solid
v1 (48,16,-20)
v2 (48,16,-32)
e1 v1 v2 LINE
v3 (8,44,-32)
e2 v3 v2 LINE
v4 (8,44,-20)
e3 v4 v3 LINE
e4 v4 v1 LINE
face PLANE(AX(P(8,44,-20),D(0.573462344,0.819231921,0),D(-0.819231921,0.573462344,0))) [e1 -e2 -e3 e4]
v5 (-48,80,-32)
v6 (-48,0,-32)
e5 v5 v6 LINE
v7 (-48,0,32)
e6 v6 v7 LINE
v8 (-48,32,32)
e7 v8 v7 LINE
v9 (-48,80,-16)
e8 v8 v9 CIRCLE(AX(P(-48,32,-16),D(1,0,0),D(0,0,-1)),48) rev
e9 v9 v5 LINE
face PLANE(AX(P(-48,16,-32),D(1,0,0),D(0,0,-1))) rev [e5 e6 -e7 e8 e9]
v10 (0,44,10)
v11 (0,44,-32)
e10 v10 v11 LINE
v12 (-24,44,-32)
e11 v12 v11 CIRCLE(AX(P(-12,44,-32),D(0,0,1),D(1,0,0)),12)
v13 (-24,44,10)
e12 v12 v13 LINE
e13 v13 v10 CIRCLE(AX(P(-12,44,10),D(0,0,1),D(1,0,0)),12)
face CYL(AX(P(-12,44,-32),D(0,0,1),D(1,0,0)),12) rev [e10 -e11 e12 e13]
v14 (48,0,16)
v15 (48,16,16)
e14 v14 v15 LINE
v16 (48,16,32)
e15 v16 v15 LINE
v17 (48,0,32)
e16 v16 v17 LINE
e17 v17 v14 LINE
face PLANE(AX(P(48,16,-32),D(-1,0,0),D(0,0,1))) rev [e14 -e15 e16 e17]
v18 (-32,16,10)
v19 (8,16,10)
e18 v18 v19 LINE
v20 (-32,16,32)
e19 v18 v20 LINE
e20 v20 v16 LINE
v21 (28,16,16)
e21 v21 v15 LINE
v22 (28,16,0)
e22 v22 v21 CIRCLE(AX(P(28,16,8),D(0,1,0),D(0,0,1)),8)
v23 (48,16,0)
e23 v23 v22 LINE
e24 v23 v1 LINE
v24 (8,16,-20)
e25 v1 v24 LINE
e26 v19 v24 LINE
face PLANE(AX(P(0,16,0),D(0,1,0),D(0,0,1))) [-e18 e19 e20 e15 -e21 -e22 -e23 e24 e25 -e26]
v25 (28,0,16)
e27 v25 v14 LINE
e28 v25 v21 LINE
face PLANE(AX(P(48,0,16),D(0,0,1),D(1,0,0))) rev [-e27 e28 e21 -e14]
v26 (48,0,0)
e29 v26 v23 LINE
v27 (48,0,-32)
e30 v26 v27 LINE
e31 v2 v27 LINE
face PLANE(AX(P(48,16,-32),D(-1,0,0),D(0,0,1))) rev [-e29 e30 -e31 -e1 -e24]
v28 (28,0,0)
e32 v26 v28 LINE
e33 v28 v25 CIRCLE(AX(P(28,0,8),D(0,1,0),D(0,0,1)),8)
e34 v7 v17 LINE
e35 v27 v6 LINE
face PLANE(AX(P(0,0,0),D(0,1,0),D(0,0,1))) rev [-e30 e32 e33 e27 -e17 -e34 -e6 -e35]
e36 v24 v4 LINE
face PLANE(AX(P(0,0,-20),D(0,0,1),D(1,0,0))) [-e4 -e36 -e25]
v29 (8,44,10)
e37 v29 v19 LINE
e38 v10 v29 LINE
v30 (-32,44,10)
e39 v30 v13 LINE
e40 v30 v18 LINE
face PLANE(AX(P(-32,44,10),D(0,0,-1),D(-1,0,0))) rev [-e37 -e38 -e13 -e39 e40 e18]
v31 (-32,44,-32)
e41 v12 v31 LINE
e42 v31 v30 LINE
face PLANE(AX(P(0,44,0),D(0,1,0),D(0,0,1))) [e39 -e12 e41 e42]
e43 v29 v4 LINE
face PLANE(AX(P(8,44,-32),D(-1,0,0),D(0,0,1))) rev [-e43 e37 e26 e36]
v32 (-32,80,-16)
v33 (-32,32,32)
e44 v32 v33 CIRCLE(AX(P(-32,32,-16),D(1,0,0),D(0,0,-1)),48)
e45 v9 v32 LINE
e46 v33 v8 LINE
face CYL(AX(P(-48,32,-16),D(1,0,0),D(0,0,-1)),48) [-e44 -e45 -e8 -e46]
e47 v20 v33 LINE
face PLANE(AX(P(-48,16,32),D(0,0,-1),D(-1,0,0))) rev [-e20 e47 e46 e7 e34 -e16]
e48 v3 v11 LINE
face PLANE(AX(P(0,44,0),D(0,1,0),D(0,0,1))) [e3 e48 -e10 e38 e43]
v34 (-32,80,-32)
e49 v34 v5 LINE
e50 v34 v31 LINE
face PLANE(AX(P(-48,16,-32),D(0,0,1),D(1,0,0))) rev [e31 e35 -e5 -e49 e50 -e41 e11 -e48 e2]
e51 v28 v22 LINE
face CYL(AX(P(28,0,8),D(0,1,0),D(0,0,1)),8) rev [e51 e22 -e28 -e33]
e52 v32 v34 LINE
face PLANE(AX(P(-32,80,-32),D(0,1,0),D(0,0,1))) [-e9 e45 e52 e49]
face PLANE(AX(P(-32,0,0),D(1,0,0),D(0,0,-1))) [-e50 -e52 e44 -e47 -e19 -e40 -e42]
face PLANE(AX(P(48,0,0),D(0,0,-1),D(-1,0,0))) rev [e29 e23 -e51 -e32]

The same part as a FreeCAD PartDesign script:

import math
import FreeCAD as App
import Part
import Sketcher


def edges_at(feature, points):
    """Names of the edges that pass closest to the given points."""
    edges = feature.Shape.Edges
    near = lambda p: min(range(len(edges)), key=lambda i: edges[i].distToShape(Part.Vertex(*p))[0])
    return sorted({f"Edge{near(p) + 1}" for p in points})


def add_polygon(sketch, points):
    """Adds a closed chain of lines whose ends are joined by coincident constraints."""
    first, n = sketch.GeometryCount, len(points)
    for a, b in zip(points, points[1:] + points[:1]):
        sketch.addGeometry(Part.LineSegment(App.Vector(*a, 0), App.Vector(*b, 0)), False)
    for i in range(n):
        sketch.addConstraint(Sketcher.Constraint("Coincident", first + i, 2, first + (i + 1) % n, 1))

doc = App.newDocument("Part")
body = doc.addObject("PartDesign::Body", "Body")

# Sketch on XZ plane
sketch1 = doc.addObject("Sketcher::SketchObject", "Sketch")
body.addObject(sketch1)
sketch1.AttachmentSupport = (doc.XZ_Plane, [""])
sketch1.MapMode = "FlatFace"
add_polygon(sketch1, [(-48, -32), (-48, 32), (48, 32), (48, -32)])  # lines 0-3
sketch1.addConstraint(Sketcher.Constraint("Vertical", 0))
sketch1.addConstraint(Sketcher.Constraint("Horizontal", 1))
sketch1.addConstraint(Sketcher.Constraint("Vertical", 2))
sketch1.addConstraint(Sketcher.Constraint("Horizontal", 3))
sketch1.addConstraint(Sketcher.Constraint("Symmetric", 0, 2, 2, 2, -1, 1))
sketch1.addConstraint(Sketcher.Constraint("DistanceX", 1, 1, 1, 2, 96.0))
sketch1.addConstraint(Sketcher.Constraint("DistanceY", 0, 1, 0, 2, 64.0))
pad1 = doc.addObject("PartDesign::Pad", "Pad")
body.addObject(pad1)
pad1.Profile = sketch1
pad1.Length = 16
pad1.Reversed = True

# Sketch on YZ plane
sketch2 = doc.addObject("Sketcher::SketchObject", "Sketch001")
body.addObject(sketch2)
sketch2.AttachmentSupport = (doc.YZ_Plane, [""])
sketch2.MapMode = "FlatFace"
sketch2.AttachmentOffset = App.Placement(App.Vector(0, 0, -48), App.Rotation())
add_polygon(sketch2, [(80, -32), (16, -32), (16, 32), (80, 32)])  # lines 0-3
sketch2.addConstraint(Sketcher.Constraint("Horizontal", 0))
sketch2.addConstraint(Sketcher.Constraint("Vertical", 1))
sketch2.addConstraint(Sketcher.Constraint("Horizontal", 2))
sketch2.addConstraint(Sketcher.Constraint("Vertical", 3))
sketch2.addConstraint(Sketcher.Constraint("Equal", 2, 1))
sketch2.addConstraint(Sketcher.Constraint("DistanceX", 0, 2, 0, 1, 64.0))
sketch2.addConstraint(Sketcher.Constraint("DistanceX", -1, 1, 0, 2, 16.0))
sketch2.addConstraint(Sketcher.Constraint("DistanceY", 0, 2, -1, 1, 32.0))
pad2 = doc.addObject("PartDesign::Pad", "Pad001")
body.addObject(pad2)
pad2.Profile = sketch2
pad2.Length = 16
doc.recompute()

fillet = doc.addObject("PartDesign::Fillet", "Fillet")
body.addObject(fillet)
fillet.Base = (pad2, edges_at(pad2, [(-40, 80, 32)]))
fillet.Radius = 48

# Sketch on XZ plane
sketch3 = doc.addObject("Sketcher::SketchObject", "Sketch002")
body.addObject(sketch3)
sketch3.AttachmentSupport = (doc.XZ_Plane, [""])
sketch3.MapMode = "FlatFace"
sketch3.AttachmentOffset = App.Placement(App.Vector(0, 0, -16), App.Rotation())
add_polygon(sketch3, [(-32, -32), (-32, 10), (8, 10), (8, -32)])  # lines 0-3
sketch3.addConstraint(Sketcher.Constraint("Vertical", 0))
sketch3.addConstraint(Sketcher.Constraint("Horizontal", 1))
sketch3.addConstraint(Sketcher.Constraint("Vertical", 2))
sketch3.addConstraint(Sketcher.Constraint("Horizontal", 3))
sketch3.addConstraint(Sketcher.Constraint("DistanceX", 1, 1, 1, 2, 40.0))
sketch3.addConstraint(Sketcher.Constraint("DistanceY", 0, 1, 0, 2, 42.0))
sketch3.addConstraint(Sketcher.Constraint("DistanceX", 0, 2, -1, 1, 32.0))
sketch3.addConstraint(Sketcher.Constraint("DistanceY", -1, 1, 0, 2, 10.0))
pad3 = doc.addObject("PartDesign::Pad", "Pad002")
body.addObject(pad3)
pad3.Profile = sketch3
pad3.Length = 28
pad3.Reversed = True

# Sketch on XY plane
sketch4 = doc.addObject("Sketcher::SketchObject", "Sketch003")
body.addObject(sketch4)
sketch4.AttachmentSupport = (doc.XY_Plane, [""])
sketch4.MapMode = "FlatFace"
sketch4.AttachmentOffset = App.Placement(App.Vector(0, 0, 10), App.Rotation())
sketch4.addGeometry(Part.Circle(App.Vector(-12, 44, 0), App.Vector(0, 0, 1), 12), False)
sketch4.addConstraint(Sketcher.Constraint("Diameter", 0, 24.0))
sketch4.addConstraint(Sketcher.Constraint("DistanceX", 0, 3, -1, 1, 12.0))
sketch4.addConstraint(Sketcher.Constraint("DistanceY", -1, 1, 0, 3, 44.0))
pocket1 = doc.addObject("PartDesign::Pocket", "Pocket")
body.addObject(pocket1)
pocket1.Profile = sketch4
pocket1.Type = "ThroughAll"

# Sketch on XZ plane
sketch5 = doc.addObject("Sketcher::SketchObject", "Sketch004")
body.addObject(sketch5)
sketch5.AttachmentSupport = (doc.XZ_Plane, [""])
sketch5.MapMode = "FlatFace"
sketch5.AttachmentOffset = App.Placement(App.Vector(0, 0, -16), App.Rotation())
sketch5.addGeometry(Part.LineSegment(App.Vector(28, 16, 0), App.Vector(48, 16, 0)), False)
sketch5.addGeometry(Part.ArcOfCircle(Part.Circle(App.Vector(48, 8, 0), App.Vector(0, 0, 1), 8), math.radians(-90), math.radians(90)), False)
sketch5.addGeometry(Part.LineSegment(App.Vector(48, 0, 0), App.Vector(28, 0, 0)), False)
sketch5.addGeometry(Part.ArcOfCircle(Part.Circle(App.Vector(28, 8, 0), App.Vector(0, 0, 1), 8), math.radians(90), math.radians(270)), False)
sketch5.addConstraint(Sketcher.Constraint("Tangent", 0, 2, 1, 2))
sketch5.addConstraint(Sketcher.Constraint("Tangent", 1, 1, 2, 1))
sketch5.addConstraint(Sketcher.Constraint("Tangent", 2, 2, 3, 2))
sketch5.addConstraint(Sketcher.Constraint("Tangent", 3, 1, 0, 1))
sketch5.addConstraint(Sketcher.Constraint("Horizontal", 0))
sketch5.addConstraint(Sketcher.Constraint("Horizontal", 2))
sketch5.addConstraint(Sketcher.Constraint("PointOnObject", 1, 1, -1))
sketch5.addConstraint(Sketcher.Constraint("Radius", 1, 8.0))
sketch5.addConstraint(Sketcher.Constraint("DistanceX", 0, 1, 0, 2, 20.0))
sketch5.addConstraint(Sketcher.Constraint("DistanceX", -1, 1, 1, 3, 48.0))
pocket2 = doc.addObject("PartDesign::Pocket", "Pocket001")
body.addObject(pocket2)
pocket2.Profile = sketch5
pocket2.Type = "ThroughAll"
pocket2.Reversed = True

# Sketch on XY plane
sketch6 = doc.addObject("Sketcher::SketchObject", "Sketch005")
body.addObject(sketch6)
sketch6.AttachmentSupport = (doc.XY_Plane, [""])
sketch6.MapMode = "FlatFace"
sketch6.AttachmentOffset = App.Placement(App.Vector(0, 0, -32), App.Rotation())
add_polygon(sketch6, [(8, 44), (48, 16), (8, 16)])  # lines 0-2
sketch6.addConstraint(Sketcher.Constraint("Horizontal", 1))
sketch6.addConstraint(Sketcher.Constraint("Vertical", 2))
sketch6.addConstraint(Sketcher.Constraint("DistanceX", 1, 2, 1, 1, 40.0))
sketch6.addConstraint(Sketcher.Constraint("DistanceY", 2, 1, 2, 2, 28.0))
sketch6.addConstraint(Sketcher.Constraint("DistanceX", -1, 1, 0, 2, 48.0))
sketch6.addConstraint(Sketcher.Constraint("DistanceY", -1, 1, 0, 2, 16.0))
pad4 = doc.addObject("PartDesign::Pad", "Pad003")
body.addObject(pad4)
pad4.Profile = sketch6
pad4.Length = 12

doc.recompute()
